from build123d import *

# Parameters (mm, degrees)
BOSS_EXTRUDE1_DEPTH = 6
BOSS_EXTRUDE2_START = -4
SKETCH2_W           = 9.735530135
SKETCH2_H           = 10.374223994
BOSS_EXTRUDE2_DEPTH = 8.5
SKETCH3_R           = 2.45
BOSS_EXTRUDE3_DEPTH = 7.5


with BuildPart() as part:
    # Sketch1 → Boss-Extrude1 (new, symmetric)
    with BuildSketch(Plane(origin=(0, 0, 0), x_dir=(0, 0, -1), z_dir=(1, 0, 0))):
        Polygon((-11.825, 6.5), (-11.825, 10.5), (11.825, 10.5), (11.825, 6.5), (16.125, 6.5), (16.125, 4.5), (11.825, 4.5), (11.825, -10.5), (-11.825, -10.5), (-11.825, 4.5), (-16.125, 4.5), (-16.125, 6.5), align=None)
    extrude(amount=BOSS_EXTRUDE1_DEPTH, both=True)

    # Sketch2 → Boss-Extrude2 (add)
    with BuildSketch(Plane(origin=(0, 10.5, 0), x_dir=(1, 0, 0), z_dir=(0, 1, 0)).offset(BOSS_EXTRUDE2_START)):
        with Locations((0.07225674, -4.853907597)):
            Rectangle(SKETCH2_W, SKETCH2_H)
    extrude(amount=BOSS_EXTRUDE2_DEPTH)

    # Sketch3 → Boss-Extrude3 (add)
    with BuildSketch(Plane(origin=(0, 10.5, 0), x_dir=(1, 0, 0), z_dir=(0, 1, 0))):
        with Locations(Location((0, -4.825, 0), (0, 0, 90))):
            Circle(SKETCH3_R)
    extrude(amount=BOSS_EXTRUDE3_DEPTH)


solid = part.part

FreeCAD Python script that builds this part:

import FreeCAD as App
import Part
import Sketcher
from FreeCAD import Vector
Q = App.Units.Quantity

doc = App.newDocument("Part")
body = doc.addObject("PartDesign::Body", "Body")

# Sketch on YZ plane
sketch1 = body.newObject("Sketcher::SketchObject", "Sketch")
sketch1.AttachmentSupport = (doc.getObject("YZ_Plane"), [""])
sketch1.MapMode = "FlatFace"
sketch1.addGeometry(Part.LineSegment(Vector(10.5, 11.8, 0), Vector(6.5, 11.8, 0)), False)
sketch1.addGeometry(Part.LineSegment(Vector(6.5, 11.8, 0), Vector(6.5, 16.1, 0)), False)
sketch1.addGeometry(Part.LineSegment(Vector(6.5, 16.1, 0), Vector(4.5, 16.1, 0)), False)
sketch1.addGeometry(Part.LineSegment(Vector(4.5, 16.1, 0), Vector(4.5, 11.8, 0)), False)
sketch1.addGeometry(Part.LineSegment(Vector(4.5, 11.8, 0), Vector(-10.5, 11.8, 0)), False)
sketch1.addGeometry(Part.LineSegment(Vector(-10.5, 11.8, 0), Vector(-10.5, -11.8, 0)), False)
sketch1.addGeometry(Part.LineSegment(Vector(-10.5, -11.8, 0), Vector(4.5, -11.8, 0)), False)
sketch1.addGeometry(Part.LineSegment(Vector(4.5, -11.8, 0), Vector(4.5, -16.1, 0)), False)
sketch1.addGeometry(Part.LineSegment(Vector(4.5, -16.1, 0), Vector(6.5, -16.1, 0)), False)
sketch1.addGeometry(Part.LineSegment(Vector(6.5, -16.1, 0), Vector(6.5, -11.8, 0)), False)
sketch1.addGeometry(Part.LineSegment(Vector(6.5, -11.8, 0), Vector(10.5, -11.8, 0)), False)
sketch1.addGeometry(Part.LineSegment(Vector(10.5, -11.8, 0), Vector(10.5, 11.8, 0)), False)
sketch1.addConstraint(Sketcher.Constraint("Coincident", 0, 2, 1, 1))
sketch1.addConstraint(Sketcher.Constraint("Coincident", 1, 2, 2, 1))
sketch1.addConstraint(Sketcher.Constraint("Coincident", 2, 2, 3, 1))
sketch1.addConstraint(Sketcher.Constraint("Coincident", 3, 2, 4, 1))
sketch1.addConstraint(Sketcher.Constraint("Coincident", 4, 2, 5, 1))
sketch1.addConstraint(Sketcher.Constraint("Coincident", 5, 2, 6, 1))
sketch1.addConstraint(Sketcher.Constraint("Coincident", 6, 2, 7, 1))
sketch1.addConstraint(Sketcher.Constraint("Coincident", 7, 2, 8, 1))
sketch1.addConstraint(Sketcher.Constraint("Coincident", 8, 2, 9, 1))
sketch1.addConstraint(Sketcher.Constraint("Coincident", 9, 2, 10, 1))
sketch1.addConstraint(Sketcher.Constraint("Coincident", 10, 2, 11, 1))
sketch1.addConstraint(Sketcher.Constraint("Coincident", 11, 2, 0, 1))
sketch1.addConstraint(Sketcher.Constraint("Horizontal", 0))
sketch1.addConstraint(Sketcher.Constraint("Vertical", 1))
sketch1.addConstraint(Sketcher.Constraint("Horizontal", 2))
sketch1.addConstraint(Sketcher.Constraint("Vertical", 3))
sketch1.addConstraint(Sketcher.Constraint("Horizontal", 4))
sketch1.addConstraint(Sketcher.Constraint("Vertical", 5))
sketch1.addConstraint(Sketcher.Constraint("Horizontal", 6))
sketch1.addConstraint(Sketcher.Constraint("Vertical", 7))
sketch1.addConstraint(Sketcher.Constraint("Horizontal", 8))
sketch1.addConstraint(Sketcher.Constraint("Vertical", 9))
sketch1.addConstraint(Sketcher.Constraint("Horizontal", 10))
sketch1.addConstraint(Sketcher.Constraint("Vertical", 11))
sketch1.addConstraint(Sketcher.Constraint("Symmetric", 4, 2, 10, 2, -1, 1))
sketch1.addConstraint(Sketcher.Constraint("Symmetric", 3, 2, 6, 2, -1))
sketch1.addConstraint(Sketcher.Constraint("Symmetric", 1, 2, 8, 2, -1))
sketch1.addConstraint(Sketcher.Constraint("Horizontal", 0, 2, 3, 2))
sketch1.addConstraint(Sketcher.Constraint("DistanceX", 0, 2, 0, 1, Q("4 mm")))
sketch1.addConstraint(Sketcher.Constraint("DistanceX", 2, 2, 2, 1, Q("2 mm")))
sketch1.addConstraint(Sketcher.Constraint("DistanceX", 4, 2, 4, 1, Q("15 mm")))
sketch1.addConstraint(Sketcher.Constraint("DistanceY", 1, 1, 1, 2, Q("4.3 mm")))
sketch1.addConstraint(Sketcher.Constraint("DistanceY", 5, 2, 5, 1, Q("23.65 mm")))
pad1 = body.newObject("PartDesign::Pad", "Pad")
pad1.Profile = sketch1
pad1.Length = 12
pad1.Midplane = True

# Sketch on XZ plane
sketch2 = body.newObject("Sketcher::SketchObject", "Sketch001")
sketch2.AttachmentSupport = (doc.getObject("XZ_Plane"), [""])
sketch2.MapMode = "FlatFace"
sketch2.AttachmentOffset = App.Placement(Vector(0, 0, -6.5), App.Rotation())
sketch2.addGeometry(Part.LineSegment(Vector(-5, 0, 0), Vector(-5, 10, 0)), False)
sketch2.addGeometry(Part.LineSegment(Vector(-5, 10, 0), Vector(5, 10, 0)), False)
sketch2.addGeometry(Part.LineSegment(Vector(5, 10, 0), Vector(5, 0, 0)), False)
sketch2.addGeometry(Part.LineSegment(Vector(5, 0, 0), Vector(-5, 0, 0)), False)
sketch2.addConstraint(Sketcher.Constraint("Coincident", 0, 2, 1, 1))
sketch2.addConstraint(Sketcher.Constraint("Coincident", 1, 2, 2, 1))
sketch2.addConstraint(Sketcher.Constraint("Coincident", 2, 2, 3, 1))
sketch2.addConstraint(Sketcher.Constraint("Coincident", 3, 2, 0, 1))
sketch2.addConstraint(Sketcher.Constraint("Vertical", 0))
sketch2.addConstraint(Sketcher.Constraint("Horizontal", 1))
sketch2.addConstraint(Sketcher.Constraint("Vertical", 2))
sketch2.addConstraint(Sketcher.Constraint("Horizontal", 3))
sketch2.addConstraint(Sketcher.Constraint("DistanceX", 1, 1, 1, 2, Q("9.73553 mm")))
sketch2.addConstraint(Sketcher.Constraint("DistanceY", 0, 1, 0, 2, Q("10.374224 mm")))
sketch2.addConstraint(Sketcher.Constraint("DistanceX", 0, 2, -1, 1, Q("4.795508 mm")))
sketch2.addConstraint(Sketcher.Constraint("DistanceY", -1, 1, 0, 2, Q("10.04102 mm")))
pad2 = body.newObject("PartDesign::Pad", "Pad001")
pad2.Profile = sketch2
pad2.Length = 8.5
pad2.Reversed = True

# Sketch on XZ plane
sketch3 = body.newObject("Sketcher::SketchObject", "Sketch002")
sketch3.AttachmentSupport = (doc.getObject("XZ_Plane"), [""])
sketch3.MapMode = "FlatFace"
sketch3.AttachmentOffset = App.Placement(Vector(0, 0, -10.5), App.Rotation())
sketch3.addGeometry(Part.Circle(Vector(0, 4.8, 0), Vector(0, 0, 1), 2.5), False)
sketch3.addConstraint(Sketcher.Constraint("PointOnObject", 0, 3, -2))
sketch3.addConstraint(Sketcher.Constraint("Diameter", 0, Q("4.9 mm")))
sketch3.addConstraint(Sketcher.Constraint("DistanceY", -1, 1, 0, 3, Q("4.825 mm")))
pad3 = body.newObject("PartDesign::Pad", "Pad002")
pad3.Profile = sketch3
pad3.Length = 7.5
pad3.Reversed = True

doc.recompute()
